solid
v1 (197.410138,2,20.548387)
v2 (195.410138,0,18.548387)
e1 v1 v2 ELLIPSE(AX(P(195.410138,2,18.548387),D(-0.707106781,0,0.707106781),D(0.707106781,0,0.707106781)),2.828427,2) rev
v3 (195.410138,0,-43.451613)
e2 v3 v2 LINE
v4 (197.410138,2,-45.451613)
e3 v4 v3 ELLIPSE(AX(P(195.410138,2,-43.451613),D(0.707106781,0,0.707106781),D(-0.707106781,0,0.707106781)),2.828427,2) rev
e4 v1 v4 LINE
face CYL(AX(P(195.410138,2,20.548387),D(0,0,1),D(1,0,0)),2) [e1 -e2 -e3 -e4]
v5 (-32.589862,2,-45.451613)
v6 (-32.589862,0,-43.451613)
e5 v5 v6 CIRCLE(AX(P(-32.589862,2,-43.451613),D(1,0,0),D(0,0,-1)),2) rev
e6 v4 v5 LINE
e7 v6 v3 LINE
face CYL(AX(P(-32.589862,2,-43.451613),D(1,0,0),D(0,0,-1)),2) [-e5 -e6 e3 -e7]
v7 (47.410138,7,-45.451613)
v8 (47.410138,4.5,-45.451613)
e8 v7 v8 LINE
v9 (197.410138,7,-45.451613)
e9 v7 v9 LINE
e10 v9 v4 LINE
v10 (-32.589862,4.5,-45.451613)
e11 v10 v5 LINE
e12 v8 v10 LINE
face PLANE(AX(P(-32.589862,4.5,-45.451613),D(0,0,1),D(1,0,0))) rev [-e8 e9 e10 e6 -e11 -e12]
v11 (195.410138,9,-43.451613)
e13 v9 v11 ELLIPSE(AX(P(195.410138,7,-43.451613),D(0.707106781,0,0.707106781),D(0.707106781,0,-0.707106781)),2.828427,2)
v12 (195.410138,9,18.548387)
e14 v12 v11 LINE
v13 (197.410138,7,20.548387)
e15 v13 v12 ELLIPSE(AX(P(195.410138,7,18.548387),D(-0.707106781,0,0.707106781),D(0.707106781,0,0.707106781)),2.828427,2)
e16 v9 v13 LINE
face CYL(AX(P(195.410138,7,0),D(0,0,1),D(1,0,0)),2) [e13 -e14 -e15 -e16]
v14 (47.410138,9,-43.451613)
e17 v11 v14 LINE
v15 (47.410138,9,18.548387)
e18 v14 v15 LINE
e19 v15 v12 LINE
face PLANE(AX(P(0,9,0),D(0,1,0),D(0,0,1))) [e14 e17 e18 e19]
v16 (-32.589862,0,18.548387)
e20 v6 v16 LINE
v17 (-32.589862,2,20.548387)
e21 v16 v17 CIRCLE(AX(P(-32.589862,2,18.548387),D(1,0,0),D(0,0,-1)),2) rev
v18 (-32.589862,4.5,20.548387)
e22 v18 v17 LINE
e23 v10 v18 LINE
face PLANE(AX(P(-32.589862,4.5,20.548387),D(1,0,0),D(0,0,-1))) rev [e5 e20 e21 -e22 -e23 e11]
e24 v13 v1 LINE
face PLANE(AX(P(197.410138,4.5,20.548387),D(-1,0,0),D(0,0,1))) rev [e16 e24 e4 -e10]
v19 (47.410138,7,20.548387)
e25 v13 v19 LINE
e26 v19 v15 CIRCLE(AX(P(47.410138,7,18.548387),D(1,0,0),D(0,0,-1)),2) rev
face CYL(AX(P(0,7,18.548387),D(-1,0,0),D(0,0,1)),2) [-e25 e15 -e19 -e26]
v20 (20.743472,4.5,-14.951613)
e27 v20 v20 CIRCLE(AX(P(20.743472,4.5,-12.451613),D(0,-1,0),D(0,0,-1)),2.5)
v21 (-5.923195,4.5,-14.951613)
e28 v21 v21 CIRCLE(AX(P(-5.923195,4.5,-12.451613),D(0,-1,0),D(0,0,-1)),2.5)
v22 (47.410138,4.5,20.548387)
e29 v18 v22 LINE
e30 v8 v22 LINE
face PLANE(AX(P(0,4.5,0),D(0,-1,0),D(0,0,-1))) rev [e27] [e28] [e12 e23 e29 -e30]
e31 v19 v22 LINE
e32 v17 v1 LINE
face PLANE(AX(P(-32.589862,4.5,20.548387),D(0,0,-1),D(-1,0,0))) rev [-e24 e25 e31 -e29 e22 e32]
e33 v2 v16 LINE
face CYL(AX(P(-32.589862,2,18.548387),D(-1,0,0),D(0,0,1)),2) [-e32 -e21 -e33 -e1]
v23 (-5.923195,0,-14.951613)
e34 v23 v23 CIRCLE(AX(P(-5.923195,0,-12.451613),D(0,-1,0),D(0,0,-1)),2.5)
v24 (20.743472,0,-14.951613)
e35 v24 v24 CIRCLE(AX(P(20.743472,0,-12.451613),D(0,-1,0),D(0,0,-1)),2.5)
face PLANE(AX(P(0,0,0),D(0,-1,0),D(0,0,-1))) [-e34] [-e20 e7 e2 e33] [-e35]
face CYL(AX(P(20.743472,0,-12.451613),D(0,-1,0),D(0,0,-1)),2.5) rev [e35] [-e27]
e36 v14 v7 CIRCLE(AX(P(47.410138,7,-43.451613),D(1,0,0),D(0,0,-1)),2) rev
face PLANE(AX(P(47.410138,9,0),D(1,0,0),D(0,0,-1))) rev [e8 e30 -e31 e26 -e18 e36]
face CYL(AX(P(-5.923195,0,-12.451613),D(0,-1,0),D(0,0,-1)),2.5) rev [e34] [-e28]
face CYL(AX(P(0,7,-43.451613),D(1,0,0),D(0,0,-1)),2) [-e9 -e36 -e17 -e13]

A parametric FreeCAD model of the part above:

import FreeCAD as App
import Part
import Sketcher
from FreeCAD import Vector


def edges_at(feature, points):
    """Names of the edges that pass closest to the given points."""
    edges = feature.Shape.Edges
    near = lambda p: min(range(len(edges)), key=lambda i: edges[i].distToShape(Part.Vertex(*p))[0])
    return sorted({f"Edge{near(p) + 1}" for p in points})


def add_polygon(sketch, points):
    """Adds a closed chain of lines whose ends are joined by coincident constraints."""
    first, n = sketch.GeometryCount, len(points)
    for a, b in zip(points, points[1:] + points[:1]):
        sketch.addGeometry(Part.LineSegment(App.Vector(*a, 0), App.Vector(*b, 0)), False)
    for i in range(n):
        sketch.addConstraint(Sketcher.Constraint("Coincident", first + i, 2, first + (i + 1) % n, 1))

doc = App.newDocument("Part")
body = doc.addObject("PartDesign::Body", "Body")

sketch1 = body.newObject("Sketcher::SketchObject", "Sketch")
sketch1.AttachmentSupport = (doc.getObject("XZ_Plane"), [""])
sketch1.MapMode = "FlatFace"
add_polygon(sketch1, [(-33, -45), (-33, 21), (197, 21), (197, -45)])
sketch1.addConstraint([
    Sketcher.Constraint("Vertical", 0),
    Sketcher.Constraint("Horizontal", 1),
    Sketcher.Constraint("Vertical", 2),
    Sketcher.Constraint("Horizontal", 3),
    Sketcher.Constraint("DistanceX", 1, 1, 1, 2, 230.0),
    Sketcher.Constraint("DistanceY", 0, 1, 0, 2, 66.0),
    Sketcher.Constraint("DistanceX", 0, 2, -1, 1, 32.589862),
    Sketcher.Constraint("DistanceY", -1, 1, 0, 2, 20.548387),
])
pad1 = body.newObject("PartDesign::Pad", "Pad")
pad1.Profile = sketch1
pad1.Length = 4.5
pad1.Reversed = True

sketch2 = body.newObject("Sketcher::SketchObject", "Sketch001")
sketch2.AttachmentSupport = (doc.getObject("XZ_Plane"), [""])
sketch2.MapMode = "FlatFace"
sketch2.AttachmentOffset = App.Placement(Vector(0, 0, -4.5), App.Rotation())
add_polygon(sketch2, [(47, -45), (47, 21), (197, 21), (197, -45)])
sketch2.addConstraint([
    Sketcher.Constraint("Vertical", 0),
    Sketcher.Constraint("Horizontal", 1),
    Sketcher.Constraint("Vertical", 2),
    Sketcher.Constraint("Horizontal", 3),
    Sketcher.Constraint("DistanceX", 1, 1, 1, 2, 150.0),
    Sketcher.Constraint("DistanceY", 0, 1, 0, 2, 66.0),
    Sketcher.Constraint("DistanceX", -1, 1, 0, 2, 47.410138),
    Sketcher.Constraint("DistanceY", -1, 1, 0, 2, 20.548387),
])
pad2 = body.newObject("PartDesign::Pad", "Pad001")
pad2.Profile = sketch2
pad2.Length = 4.5
pad2.Reversed = True

sketch3 = body.newObject("Sketcher::SketchObject", "Sketch002")
sketch3.AttachmentSupport = (doc.getObject("XZ_Plane"), [""])
sketch3.MapMode = "FlatFace"
sketch3.addGeometry([
    Part.Circle(Vector(-5.9, -12.5, 0), Vector(0, 0, 1), 2.5),
    Part.Circle(Vector(20.7, -12.5, 0), Vector(0, 0, 1), 2.5),
], False)
sketch3.addConstraint([
    Sketcher.Constraint("Equal", 0, 1),
    Sketcher.Constraint("Horizontal", 0, 3, 1, 3),
    Sketcher.Constraint("Diameter", 0, 5.0),
    Sketcher.Constraint("DistanceX", -1, 1, 1, 3, 20.743472),
    Sketcher.Constraint("DistanceX", 0, 3, -1, 1, 5.923195),
    Sketcher.Constraint("DistanceY", 0, 3, -1, 1, 12.451613),
])
doc.recompute()
hole = body.newObject("PartDesign::Hole", "Hole")
hole.Profile = sketch3
hole.ThreadType = "None"
hole.Diameter = 5
hole.DepthType = "ThroughAll"
doc.recompute()

fillet = body.newObject("PartDesign::Fillet", "Fillet")
fillet.Base = (hole, edges_at(hole, [
    (122.41, 9, -45.452),
    (122.41, 9, 20.548),
    (197.41, 9, -12.452),
    (82.41, 0, -45.452),
    (197.41, 0, -12.452),
    (82.41, 0, 20.548),
]))
fillet.Radius = 2

doc.recompute()
